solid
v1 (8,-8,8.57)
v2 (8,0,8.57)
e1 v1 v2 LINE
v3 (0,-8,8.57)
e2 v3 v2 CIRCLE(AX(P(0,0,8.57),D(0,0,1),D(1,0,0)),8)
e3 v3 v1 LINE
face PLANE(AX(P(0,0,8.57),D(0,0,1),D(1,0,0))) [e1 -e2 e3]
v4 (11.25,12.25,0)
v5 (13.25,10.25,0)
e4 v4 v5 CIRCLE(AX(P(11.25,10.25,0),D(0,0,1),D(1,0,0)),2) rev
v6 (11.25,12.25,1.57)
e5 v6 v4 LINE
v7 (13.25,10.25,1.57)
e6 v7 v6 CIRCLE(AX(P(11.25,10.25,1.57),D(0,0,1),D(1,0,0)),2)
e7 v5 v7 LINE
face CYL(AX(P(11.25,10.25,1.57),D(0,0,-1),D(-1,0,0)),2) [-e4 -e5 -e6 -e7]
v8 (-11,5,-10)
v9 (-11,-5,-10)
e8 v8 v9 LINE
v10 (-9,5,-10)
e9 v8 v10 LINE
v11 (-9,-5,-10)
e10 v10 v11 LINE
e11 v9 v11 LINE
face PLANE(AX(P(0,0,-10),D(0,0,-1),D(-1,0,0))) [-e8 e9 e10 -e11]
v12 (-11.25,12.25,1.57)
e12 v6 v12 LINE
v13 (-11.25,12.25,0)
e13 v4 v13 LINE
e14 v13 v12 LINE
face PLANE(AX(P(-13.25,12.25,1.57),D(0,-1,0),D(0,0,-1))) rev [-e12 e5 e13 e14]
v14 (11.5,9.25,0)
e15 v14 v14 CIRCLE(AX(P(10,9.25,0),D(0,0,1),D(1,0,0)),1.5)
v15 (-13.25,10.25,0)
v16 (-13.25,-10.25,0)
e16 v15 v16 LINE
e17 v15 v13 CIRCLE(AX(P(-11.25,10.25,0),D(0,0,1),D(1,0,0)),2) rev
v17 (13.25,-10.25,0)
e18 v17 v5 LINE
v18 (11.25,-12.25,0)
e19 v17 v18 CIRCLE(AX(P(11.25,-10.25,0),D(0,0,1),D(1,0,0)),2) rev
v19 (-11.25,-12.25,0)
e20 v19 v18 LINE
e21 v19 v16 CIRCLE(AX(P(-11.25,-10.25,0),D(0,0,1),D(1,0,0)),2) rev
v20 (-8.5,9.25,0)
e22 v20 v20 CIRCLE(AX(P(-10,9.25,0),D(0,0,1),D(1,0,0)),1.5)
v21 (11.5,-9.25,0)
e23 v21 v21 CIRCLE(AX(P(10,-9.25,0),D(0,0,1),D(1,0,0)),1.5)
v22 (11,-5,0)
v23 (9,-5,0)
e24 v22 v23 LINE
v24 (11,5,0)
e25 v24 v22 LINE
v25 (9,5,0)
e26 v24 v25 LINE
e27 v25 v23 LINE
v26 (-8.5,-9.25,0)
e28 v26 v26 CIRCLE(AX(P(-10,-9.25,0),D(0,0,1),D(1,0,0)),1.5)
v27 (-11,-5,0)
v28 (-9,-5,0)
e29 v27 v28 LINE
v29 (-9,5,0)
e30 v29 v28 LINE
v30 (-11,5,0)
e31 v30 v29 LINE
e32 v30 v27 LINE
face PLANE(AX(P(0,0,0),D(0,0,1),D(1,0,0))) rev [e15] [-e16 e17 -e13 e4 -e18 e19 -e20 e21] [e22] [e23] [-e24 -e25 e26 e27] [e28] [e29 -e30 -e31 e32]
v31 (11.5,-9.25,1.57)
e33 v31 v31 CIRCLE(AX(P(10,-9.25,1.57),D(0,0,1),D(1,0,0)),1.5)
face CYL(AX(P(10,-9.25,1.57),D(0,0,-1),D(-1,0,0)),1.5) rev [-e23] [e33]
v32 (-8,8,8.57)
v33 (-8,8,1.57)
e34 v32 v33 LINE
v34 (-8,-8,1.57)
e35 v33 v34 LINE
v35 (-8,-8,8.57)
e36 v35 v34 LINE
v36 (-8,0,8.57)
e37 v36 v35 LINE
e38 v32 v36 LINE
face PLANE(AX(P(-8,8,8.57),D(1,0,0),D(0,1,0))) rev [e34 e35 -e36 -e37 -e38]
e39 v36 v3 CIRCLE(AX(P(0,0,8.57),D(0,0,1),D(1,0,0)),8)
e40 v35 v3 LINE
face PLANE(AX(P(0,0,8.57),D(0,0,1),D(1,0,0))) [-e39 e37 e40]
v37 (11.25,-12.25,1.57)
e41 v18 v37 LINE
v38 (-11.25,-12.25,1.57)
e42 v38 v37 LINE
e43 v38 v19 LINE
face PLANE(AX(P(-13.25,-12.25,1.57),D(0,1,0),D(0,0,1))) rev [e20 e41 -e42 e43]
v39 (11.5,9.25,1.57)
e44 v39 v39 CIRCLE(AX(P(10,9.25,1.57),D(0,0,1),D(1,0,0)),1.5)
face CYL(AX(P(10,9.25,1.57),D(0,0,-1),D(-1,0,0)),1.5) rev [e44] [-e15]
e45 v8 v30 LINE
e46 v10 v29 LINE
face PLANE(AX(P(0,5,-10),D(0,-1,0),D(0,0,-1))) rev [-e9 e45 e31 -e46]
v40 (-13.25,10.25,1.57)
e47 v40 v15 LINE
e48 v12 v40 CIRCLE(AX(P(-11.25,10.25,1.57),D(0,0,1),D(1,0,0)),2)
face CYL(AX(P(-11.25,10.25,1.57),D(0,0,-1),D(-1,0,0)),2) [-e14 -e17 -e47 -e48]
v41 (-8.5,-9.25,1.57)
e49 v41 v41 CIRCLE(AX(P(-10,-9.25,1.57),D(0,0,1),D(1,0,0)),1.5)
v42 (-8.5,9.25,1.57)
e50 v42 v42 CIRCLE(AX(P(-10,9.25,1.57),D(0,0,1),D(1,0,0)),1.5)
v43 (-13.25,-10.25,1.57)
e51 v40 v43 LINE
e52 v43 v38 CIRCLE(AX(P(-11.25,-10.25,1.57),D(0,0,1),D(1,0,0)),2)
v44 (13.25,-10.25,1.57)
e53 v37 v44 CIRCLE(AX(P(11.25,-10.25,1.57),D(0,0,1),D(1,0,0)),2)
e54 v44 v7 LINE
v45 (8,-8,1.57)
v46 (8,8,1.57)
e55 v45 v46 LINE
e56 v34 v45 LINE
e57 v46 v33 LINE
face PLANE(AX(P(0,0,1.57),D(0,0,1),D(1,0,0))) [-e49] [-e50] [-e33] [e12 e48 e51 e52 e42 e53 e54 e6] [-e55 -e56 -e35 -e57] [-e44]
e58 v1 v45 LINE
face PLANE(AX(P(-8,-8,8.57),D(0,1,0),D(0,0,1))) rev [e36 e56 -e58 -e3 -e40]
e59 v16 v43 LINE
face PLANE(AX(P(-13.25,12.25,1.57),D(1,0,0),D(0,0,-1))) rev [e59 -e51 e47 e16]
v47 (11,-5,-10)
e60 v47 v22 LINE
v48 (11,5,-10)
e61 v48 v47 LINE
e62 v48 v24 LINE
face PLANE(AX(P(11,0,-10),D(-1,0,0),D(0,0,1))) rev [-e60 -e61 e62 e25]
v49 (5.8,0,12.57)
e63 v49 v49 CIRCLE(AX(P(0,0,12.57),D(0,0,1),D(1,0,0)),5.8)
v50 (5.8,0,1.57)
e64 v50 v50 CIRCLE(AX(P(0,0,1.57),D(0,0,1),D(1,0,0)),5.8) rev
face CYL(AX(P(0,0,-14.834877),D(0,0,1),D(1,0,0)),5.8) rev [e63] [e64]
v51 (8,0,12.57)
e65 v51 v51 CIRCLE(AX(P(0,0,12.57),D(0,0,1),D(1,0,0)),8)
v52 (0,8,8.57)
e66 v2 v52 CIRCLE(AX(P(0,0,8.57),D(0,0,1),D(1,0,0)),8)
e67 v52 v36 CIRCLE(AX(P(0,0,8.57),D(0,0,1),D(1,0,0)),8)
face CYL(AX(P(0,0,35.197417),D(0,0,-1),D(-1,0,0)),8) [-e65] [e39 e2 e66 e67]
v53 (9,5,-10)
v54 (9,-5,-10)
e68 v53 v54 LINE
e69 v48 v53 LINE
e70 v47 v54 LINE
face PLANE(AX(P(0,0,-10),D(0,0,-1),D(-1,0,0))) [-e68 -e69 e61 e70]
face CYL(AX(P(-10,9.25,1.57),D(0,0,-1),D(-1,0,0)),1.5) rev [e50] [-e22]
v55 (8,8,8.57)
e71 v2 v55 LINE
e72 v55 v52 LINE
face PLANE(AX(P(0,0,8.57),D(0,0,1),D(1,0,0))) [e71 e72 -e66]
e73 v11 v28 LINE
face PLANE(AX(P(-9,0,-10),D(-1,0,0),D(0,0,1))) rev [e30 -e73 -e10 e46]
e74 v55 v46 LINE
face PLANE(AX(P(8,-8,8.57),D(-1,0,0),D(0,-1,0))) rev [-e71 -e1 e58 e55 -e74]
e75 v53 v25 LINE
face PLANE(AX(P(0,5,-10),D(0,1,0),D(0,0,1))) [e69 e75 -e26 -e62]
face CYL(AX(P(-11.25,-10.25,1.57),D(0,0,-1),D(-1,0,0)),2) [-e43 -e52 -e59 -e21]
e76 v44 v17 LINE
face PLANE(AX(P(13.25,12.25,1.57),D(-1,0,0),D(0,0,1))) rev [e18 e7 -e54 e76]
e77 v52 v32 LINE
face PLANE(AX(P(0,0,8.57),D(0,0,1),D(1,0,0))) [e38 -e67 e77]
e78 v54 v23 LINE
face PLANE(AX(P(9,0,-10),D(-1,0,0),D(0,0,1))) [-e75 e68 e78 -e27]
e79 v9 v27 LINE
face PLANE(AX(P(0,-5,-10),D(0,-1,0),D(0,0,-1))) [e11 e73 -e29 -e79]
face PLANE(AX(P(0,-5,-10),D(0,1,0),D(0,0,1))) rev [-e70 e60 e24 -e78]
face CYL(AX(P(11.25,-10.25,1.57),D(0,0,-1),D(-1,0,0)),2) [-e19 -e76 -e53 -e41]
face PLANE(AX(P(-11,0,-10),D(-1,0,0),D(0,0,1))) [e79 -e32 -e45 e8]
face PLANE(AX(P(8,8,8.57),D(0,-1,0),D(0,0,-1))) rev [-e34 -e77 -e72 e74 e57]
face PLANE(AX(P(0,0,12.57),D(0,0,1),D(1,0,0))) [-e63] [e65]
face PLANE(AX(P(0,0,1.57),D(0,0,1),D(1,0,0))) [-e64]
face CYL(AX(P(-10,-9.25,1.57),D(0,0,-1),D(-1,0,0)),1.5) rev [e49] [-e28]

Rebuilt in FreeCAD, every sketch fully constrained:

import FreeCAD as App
import Part
import Sketcher


def edges_at(feature, points):
    """Names of the edges that pass closest to the given points."""
    edges = feature.Shape.Edges
    near = lambda p: min(range(len(edges)), key=lambda i: edges[i].distToShape(Part.Vertex(*p))[0])
    return sorted({f"Edge{near(p) + 1}" for p in points})


def add_polygon(sketch, points):
    """Adds a closed chain of lines whose ends are joined by coincident constraints."""
    first, n = sketch.GeometryCount, len(points)
    for a, b in zip(points, points[1:] + points[:1]):
        sketch.addGeometry(Part.LineSegment(App.Vector(*a, 0), App.Vector(*b, 0)), False)
    for i in range(n):
        sketch.addConstraint(Sketcher.Constraint("Coincident", first + i, 2, first + (i + 1) % n, 1))

doc = App.newDocument("Part")
body = doc.addObject("PartDesign::Body", "Body")

# Sketch on XY plane
sketch1 = body.newObject("Sketcher::SketchObject", "Sketch")
sketch1.AttachmentSupport = (doc.getObject("XY_Plane"), [""])
sketch1.MapMode = "FlatFace"
add_polygon(sketch1, [(-13.25, 12.25), (-13.25, -12.25), (13.25, -12.25), (13.25, 12.25)])  # lines 0-3
sketch1.addGeometry(Part.Circle(App.Vector(-10, -9.25, 0), App.Vector(0, 0, 1), 1.5), False)  # 4
sketch1.addGeometry(Part.Circle(App.Vector(10, -9.25, 0), App.Vector(0, 0, 1), 1.5), False)  # 5
sketch1.addGeometry(Part.Circle(App.Vector(-10, 9.25, 0), App.Vector(0, 0, 1), 1.5), False)  # 6
sketch1.addGeometry(Part.Circle(App.Vector(10, 9.25, 0), App.Vector(0, 0, 1), 1.5), False)  # 7
sketch1.addConstraint([
    Sketcher.Constraint("Vertical", 0),
    Sketcher.Constraint("Horizontal", 1),
    Sketcher.Constraint("Vertical", 2),
    Sketcher.Constraint("Horizontal", 3),
    Sketcher.Constraint("Equal", 4, 5),
    Sketcher.Constraint("Equal", 5, 6),
    Sketcher.Constraint("Equal", 6, 7),
    Sketcher.Constraint("Symmetric", 5, 3, 6, 3, -1, 1),
    Sketcher.Constraint("Symmetric", 4, 3, 7, 3, -1, 1),
    Sketcher.Constraint("Symmetric", 0, 2, 2, 2, -1, 1),
    Sketcher.Constraint("Symmetric", 4, 3, 5, 3, -2),
    Sketcher.Constraint("Diameter", 4, 3.0),
    Sketcher.Constraint("DistanceX", 1, 1, 1, 2, 26.5),
    Sketcher.Constraint("DistanceY", 0, 2, 0, 1, 24.5),
    Sketcher.Constraint("DistanceX", 4, 3, -1, 1, 10.0),
    Sketcher.Constraint("DistanceY", 0, 2, 4, 3, 3.0),
])
pad1 = body.newObject("PartDesign::Pad", "Pad")
pad1.Profile = sketch1
pad1.Length = 1.57

# Sketch on XY plane
sketch2 = body.newObject("Sketcher::SketchObject", "Sketch001")
sketch2.AttachmentSupport = (doc.getObject("XY_Plane"), [""])
sketch2.MapMode = "FlatFace"
sketch2.AttachmentOffset = App.Placement(App.Vector(0, 0, 1.57), App.Rotation())
add_polygon(sketch2, [(-8, 8), (-8, -8), (8, -8), (8, 8)])  # lines 0-3
sketch2.addConstraint([
    Sketcher.Constraint("Vertical", 0),
    Sketcher.Constraint("Horizontal", 1),
    Sketcher.Constraint("Vertical", 2),
    Sketcher.Constraint("Horizontal", 3),
    Sketcher.Constraint("Symmetric", 0, 2, 2, 2, -1, 1),
    Sketcher.Constraint("Equal", 3, 0),
    Sketcher.Constraint("DistanceX", 1, 1, 1, 2, 16.0),
])
pad2 = body.newObject("PartDesign::Pad", "Pad001")
pad2.Profile = sketch2
pad2.Length = 7

# Sketch on XY plane
sketch3 = body.newObject("Sketcher::SketchObject", "Sketch002")
sketch3.AttachmentSupport = (doc.getObject("XY_Plane"), [""])
sketch3.MapMode = "FlatFace"
sketch3.AttachmentOffset = App.Placement(App.Vector(0, 0, 8.57), App.Rotation())
sketch3.addGeometry(Part.Circle(App.Vector(0, 0, 0), App.Vector(0, 0, 1), 8), False)
sketch3.addConstraint([
    Sketcher.Constraint("Coincident", 0, 3, -1, 1),
    Sketcher.Constraint("Diameter", 0, 16.0),
])
pad3 = body.newObject("PartDesign::Pad", "Pad002")
pad3.Profile = sketch3
pad3.Length = 4

# Sketch on XY plane
sketch4 = body.newObject("Sketcher::SketchObject", "Sketch003")
sketch4.AttachmentSupport = (doc.getObject("XY_Plane"), [""])
sketch4.MapMode = "FlatFace"
sketch4.AttachmentOffset = App.Placement(App.Vector(0, 0, 12.57), App.Rotation())
sketch4.addGeometry(Part.Circle(App.Vector(0, 0, 0), App.Vector(0, 0, 1), 5.8), False)
sketch4.addConstraint([
    Sketcher.Constraint("Coincident", 0, 3, -1, 1),
    Sketcher.Constraint("Diameter", 0, 11.6),
])
pocket1 = body.newObject("PartDesign::Pocket", "Pocket")
pocket1.Profile = sketch4
pocket1.Length = 11
doc.recompute()

fillet = body.newObject("PartDesign::Fillet", "Fillet")
fillet.Base = (pocket1, edges_at(pocket1, [
    (13.25, -12.25, 0.785),
    (-13.25, -12.25, 0.785),
    (-13.25, 12.25, 0.785),
    (13.25, 12.25, 0.785),
]))
fillet.Radius = 2

# Sketch on XY plane
sketch5 = body.newObject("Sketcher::SketchObject", "Sketch004")
sketch5.AttachmentSupport = (doc.getObject("XY_Plane"), [""])
sketch5.MapMode = "FlatFace"
add_polygon(sketch5, [(11, 5), (11, -5), (9, -5), (9, 5)])  # lines 0-3
add_polygon(sketch5, [(-9, 5), (-9, -5), (-11, -5), (-11, 5)])  # lines 4-7
sketch5.addConstraint([
    Sketcher.Constraint("Vertical", 0),
    Sketcher.Constraint("Horizontal", 1),
    Sketcher.Constraint("Vertical", 2),
    Sketcher.Constraint("Horizontal", 3),
    Sketcher.Constraint("Vertical", 4),
    Sketcher.Constraint("Horizontal", 5),
    Sketcher.Constraint("Vertical", 6),
    Sketcher.Constraint("Horizontal", 7),
    Sketcher.Constraint("Symmetric", 2, 2, 4, 2, -1, 1),
    Sketcher.Constraint("Symmetric", 0, 2, 6, 2, -1, 1),
    Sketcher.Constraint("Horizontal", 1, 2, 4, 2),
    Sketcher.Constraint("DistanceX", 1, 2, 1, 1, 2.0),
    Sketcher.Constraint("DistanceY", 0, 2, 0, 1, 10.0),
    Sketcher.Constraint("DistanceX", -1, 1, 0, 2, 11.0),
])
pad4 = body.newObject("PartDesign::Pad", "Pad003")
pad4.Profile = sketch5
pad4.Length = 10
pad4.Reversed = True

doc.recompute()
